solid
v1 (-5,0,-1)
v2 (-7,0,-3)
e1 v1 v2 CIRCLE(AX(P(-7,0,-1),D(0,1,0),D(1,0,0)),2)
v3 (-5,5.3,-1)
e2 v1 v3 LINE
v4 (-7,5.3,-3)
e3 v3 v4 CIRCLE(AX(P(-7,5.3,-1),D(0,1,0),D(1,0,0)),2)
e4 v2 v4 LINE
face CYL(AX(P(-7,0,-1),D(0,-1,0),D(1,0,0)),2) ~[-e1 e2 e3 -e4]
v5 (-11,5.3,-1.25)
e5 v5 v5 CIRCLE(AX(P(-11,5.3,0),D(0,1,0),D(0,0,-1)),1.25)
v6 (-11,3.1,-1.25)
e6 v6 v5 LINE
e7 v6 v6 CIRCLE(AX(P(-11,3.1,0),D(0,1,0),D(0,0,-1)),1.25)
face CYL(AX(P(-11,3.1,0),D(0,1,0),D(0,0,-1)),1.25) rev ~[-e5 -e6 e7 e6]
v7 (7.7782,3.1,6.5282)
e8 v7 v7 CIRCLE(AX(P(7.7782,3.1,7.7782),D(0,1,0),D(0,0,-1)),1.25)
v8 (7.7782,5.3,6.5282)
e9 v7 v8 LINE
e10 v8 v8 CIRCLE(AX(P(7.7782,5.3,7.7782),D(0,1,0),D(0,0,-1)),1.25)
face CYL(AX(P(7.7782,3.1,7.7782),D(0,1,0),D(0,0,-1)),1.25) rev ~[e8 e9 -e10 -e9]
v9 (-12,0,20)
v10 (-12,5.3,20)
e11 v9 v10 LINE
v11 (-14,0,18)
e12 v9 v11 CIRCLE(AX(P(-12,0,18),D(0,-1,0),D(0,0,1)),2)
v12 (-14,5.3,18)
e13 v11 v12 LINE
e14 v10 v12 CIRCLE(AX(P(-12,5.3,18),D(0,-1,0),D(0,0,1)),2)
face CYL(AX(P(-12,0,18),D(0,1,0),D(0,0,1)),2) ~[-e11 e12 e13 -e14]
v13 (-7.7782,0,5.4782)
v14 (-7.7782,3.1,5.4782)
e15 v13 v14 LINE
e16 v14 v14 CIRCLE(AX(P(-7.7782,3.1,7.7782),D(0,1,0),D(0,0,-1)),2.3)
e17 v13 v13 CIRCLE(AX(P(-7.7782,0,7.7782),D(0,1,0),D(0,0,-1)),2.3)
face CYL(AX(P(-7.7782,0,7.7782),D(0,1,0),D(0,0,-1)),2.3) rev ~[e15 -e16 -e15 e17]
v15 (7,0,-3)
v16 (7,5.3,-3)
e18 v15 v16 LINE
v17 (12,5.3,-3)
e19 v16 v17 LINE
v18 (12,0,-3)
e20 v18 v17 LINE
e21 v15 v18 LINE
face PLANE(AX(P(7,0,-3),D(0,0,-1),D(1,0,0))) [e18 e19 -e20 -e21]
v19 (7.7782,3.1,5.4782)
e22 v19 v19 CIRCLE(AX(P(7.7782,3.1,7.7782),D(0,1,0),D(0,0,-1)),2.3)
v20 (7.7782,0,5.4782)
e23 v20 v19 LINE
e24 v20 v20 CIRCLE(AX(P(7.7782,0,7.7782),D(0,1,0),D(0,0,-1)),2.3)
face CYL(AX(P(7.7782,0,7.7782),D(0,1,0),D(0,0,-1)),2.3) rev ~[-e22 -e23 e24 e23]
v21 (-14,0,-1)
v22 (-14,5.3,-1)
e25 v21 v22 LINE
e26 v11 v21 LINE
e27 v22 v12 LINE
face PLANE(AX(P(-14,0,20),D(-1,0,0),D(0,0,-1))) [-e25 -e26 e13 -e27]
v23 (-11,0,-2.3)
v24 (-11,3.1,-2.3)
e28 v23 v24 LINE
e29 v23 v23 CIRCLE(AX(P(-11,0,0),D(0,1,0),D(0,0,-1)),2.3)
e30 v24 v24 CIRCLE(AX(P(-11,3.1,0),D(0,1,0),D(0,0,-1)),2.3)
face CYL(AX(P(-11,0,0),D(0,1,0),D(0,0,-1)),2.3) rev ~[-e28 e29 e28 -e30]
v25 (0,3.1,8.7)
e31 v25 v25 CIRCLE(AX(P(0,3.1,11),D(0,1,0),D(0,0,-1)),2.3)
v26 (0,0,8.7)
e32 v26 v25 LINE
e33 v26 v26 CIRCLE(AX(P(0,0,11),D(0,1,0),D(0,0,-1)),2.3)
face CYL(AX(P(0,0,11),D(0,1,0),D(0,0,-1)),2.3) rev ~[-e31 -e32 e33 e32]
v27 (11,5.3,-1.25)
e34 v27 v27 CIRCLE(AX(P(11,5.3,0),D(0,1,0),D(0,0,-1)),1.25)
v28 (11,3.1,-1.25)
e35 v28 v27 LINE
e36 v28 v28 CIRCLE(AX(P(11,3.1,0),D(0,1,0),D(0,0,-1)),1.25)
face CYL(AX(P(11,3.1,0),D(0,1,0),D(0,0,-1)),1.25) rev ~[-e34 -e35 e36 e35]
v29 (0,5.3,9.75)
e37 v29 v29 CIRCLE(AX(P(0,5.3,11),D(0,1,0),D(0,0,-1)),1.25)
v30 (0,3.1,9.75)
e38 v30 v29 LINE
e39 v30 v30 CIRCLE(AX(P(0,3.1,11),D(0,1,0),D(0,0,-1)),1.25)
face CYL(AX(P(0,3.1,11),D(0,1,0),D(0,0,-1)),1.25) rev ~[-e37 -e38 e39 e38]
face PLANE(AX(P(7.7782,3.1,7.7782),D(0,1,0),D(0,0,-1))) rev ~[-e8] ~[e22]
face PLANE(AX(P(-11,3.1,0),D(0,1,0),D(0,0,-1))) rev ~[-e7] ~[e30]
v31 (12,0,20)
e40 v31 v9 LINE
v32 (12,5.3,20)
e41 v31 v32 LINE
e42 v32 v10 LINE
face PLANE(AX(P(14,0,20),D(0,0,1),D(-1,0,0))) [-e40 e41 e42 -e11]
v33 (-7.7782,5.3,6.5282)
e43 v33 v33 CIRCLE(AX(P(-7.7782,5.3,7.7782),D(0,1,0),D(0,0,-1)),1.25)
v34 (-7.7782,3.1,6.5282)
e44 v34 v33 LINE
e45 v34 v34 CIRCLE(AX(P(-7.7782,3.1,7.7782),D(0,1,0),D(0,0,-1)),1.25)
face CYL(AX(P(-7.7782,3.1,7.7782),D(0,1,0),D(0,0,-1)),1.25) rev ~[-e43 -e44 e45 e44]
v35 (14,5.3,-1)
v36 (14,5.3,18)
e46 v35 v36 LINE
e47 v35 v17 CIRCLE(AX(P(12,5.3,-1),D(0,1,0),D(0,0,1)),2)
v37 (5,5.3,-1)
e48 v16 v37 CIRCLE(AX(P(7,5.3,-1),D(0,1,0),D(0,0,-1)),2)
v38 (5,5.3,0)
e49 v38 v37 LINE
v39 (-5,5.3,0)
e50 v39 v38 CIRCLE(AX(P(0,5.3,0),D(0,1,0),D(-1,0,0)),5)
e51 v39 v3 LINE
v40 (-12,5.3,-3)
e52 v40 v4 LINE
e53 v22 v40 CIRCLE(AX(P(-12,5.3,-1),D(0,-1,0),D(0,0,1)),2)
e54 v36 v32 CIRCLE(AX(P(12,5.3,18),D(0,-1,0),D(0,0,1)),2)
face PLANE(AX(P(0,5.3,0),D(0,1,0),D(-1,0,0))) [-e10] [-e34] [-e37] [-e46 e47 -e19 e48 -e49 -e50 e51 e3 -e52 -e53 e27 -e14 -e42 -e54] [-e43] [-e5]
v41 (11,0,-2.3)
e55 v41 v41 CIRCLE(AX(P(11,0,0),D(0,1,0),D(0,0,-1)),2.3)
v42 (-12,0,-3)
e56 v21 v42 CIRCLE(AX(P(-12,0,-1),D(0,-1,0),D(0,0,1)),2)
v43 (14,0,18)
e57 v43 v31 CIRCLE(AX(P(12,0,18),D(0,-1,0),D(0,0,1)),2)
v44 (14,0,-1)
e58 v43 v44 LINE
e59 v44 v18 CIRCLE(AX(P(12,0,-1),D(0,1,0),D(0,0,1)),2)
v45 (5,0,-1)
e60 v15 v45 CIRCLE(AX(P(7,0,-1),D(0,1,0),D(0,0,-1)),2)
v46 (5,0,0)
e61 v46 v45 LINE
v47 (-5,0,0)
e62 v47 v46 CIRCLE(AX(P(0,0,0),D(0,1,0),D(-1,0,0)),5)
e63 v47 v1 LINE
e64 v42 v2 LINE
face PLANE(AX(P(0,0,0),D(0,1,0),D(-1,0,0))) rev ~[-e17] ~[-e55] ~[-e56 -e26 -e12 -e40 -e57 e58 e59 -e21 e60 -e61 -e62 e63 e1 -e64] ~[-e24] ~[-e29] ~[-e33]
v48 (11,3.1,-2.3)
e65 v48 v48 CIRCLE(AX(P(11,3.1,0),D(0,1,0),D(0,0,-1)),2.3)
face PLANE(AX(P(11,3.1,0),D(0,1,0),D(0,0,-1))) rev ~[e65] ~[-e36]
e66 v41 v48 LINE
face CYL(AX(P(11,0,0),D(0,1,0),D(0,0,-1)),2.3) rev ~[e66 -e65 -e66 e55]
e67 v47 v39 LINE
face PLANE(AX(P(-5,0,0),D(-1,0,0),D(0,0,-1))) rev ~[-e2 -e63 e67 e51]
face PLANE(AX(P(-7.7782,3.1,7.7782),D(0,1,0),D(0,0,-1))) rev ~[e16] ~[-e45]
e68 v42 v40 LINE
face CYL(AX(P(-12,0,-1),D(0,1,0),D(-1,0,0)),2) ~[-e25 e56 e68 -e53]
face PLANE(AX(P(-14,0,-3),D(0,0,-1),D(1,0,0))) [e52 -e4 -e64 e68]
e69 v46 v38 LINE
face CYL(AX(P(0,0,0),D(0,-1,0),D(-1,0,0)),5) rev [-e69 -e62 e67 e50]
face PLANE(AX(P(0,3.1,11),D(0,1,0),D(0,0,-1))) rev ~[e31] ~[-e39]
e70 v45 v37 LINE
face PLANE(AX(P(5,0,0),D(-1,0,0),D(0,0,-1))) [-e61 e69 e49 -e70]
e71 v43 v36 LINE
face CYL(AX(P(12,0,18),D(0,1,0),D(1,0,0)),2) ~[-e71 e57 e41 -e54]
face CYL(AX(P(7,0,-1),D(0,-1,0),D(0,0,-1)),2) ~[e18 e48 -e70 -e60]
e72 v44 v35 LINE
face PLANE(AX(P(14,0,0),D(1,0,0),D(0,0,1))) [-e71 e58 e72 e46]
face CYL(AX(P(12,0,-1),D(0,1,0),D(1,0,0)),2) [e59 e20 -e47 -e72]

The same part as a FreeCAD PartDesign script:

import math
import FreeCAD as App
import Part
import Sketcher

V = App.Vector
Q = App.Units.Quantity


def edges_at(feature, points):
    """Names of the edges that pass closest to the given points."""
    edges = feature.Shape.Edges
    near = lambda p: min(range(len(edges)), key=lambda i: edges[i].distToShape(Part.Vertex(*p))[0])
    return sorted({f"Edge{near(p) + 1}" for p in points})

doc = App.newDocument("Part")
body = doc.addObject("PartDesign::Body", "Body")

# Sketch on XZ plane
sketch1 = body.newObject("Sketcher::SketchObject", "Sketch")
sketch1.AttachmentSupport = (doc.getObject("XZ_Plane"), [""])
sketch1.MapMode = "FlatFace"
sketch1.addGeometry(Part.LineSegment(V(14, 20, 0), V(14, -3, 0)), False)
sketch1.addGeometry(Part.LineSegment(V(14, -3, 0), V(7, -3, 0)), False)
sketch1.addGeometry(Part.ArcOfCircle(Part.Circle(V(7, -1, 0), V(0, 0, 1), 2), math.radians(180), math.radians(270)), False)
sketch1.addGeometry(Part.LineSegment(V(5, -1, 0), V(5, 0, 0)), False)
sketch1.addGeometry(Part.ArcOfCircle(Part.Circle(V(0, 0, 0), V(0, 0, 1), 5), math.radians(0), math.radians(180)), False)
sketch1.addGeometry(Part.LineSegment(V(-5, 0, 0), V(-5, -1, 0)), False)
sketch1.addGeometry(Part.ArcOfCircle(Part.Circle(V(-7, -1, 0), V(0, 0, 1), 2), math.radians(-90), math.radians(0)), False)
sketch1.addGeometry(Part.LineSegment(V(-7, -3, 0), V(-14, -3, 0)), False)
sketch1.addGeometry(Part.LineSegment(V(-14, -3, 0), V(-14, 20, 0)), False)
sketch1.addGeometry(Part.LineSegment(V(-14, 20, 0), V(14, 20, 0)), False)
sketch1.addConstraint(Sketcher.Constraint("Coincident", 0, 2, 1, 1))
sketch1.addConstraint(Sketcher.Constraint("Tangent", 1, 2, 2, 2))
sketch1.addConstraint(Sketcher.Constraint("Tangent", 2, 1, 3, 1))
sketch1.addConstraint(Sketcher.Constraint("Tangent", 3, 2, 4, 1))
sketch1.addConstraint(Sketcher.Constraint("Tangent", 4, 2, 5, 1))
sketch1.addConstraint(Sketcher.Constraint("Tangent", 5, 2, 6, 2))
sketch1.addConstraint(Sketcher.Constraint("Tangent", 6, 1, 7, 1))
sketch1.addConstraint(Sketcher.Constraint("Coincident", 7, 2, 8, 1))
sketch1.addConstraint(Sketcher.Constraint("Coincident", 8, 2, 9, 1))
sketch1.addConstraint(Sketcher.Constraint("Coincident", 9, 2, 0, 1))
sketch1.addConstraint(Sketcher.Constraint("Vertical", 0))
sketch1.addConstraint(Sketcher.Constraint("Horizontal", 1))
sketch1.addConstraint(Sketcher.Constraint("Vertical", 3))
sketch1.addConstraint(Sketcher.Constraint("Vertical", 5))
sketch1.addConstraint(Sketcher.Constraint("Horizontal", 7))
sketch1.addConstraint(Sketcher.Constraint("Vertical", 8))
sketch1.addConstraint(Sketcher.Constraint("Horizontal", 9))
sketch1.addConstraint(Sketcher.Constraint("Coincident", 4, 3, -1, 1))
sketch1.addConstraint(Sketcher.Constraint("Equal", 2, 6))
sketch1.addConstraint(Sketcher.Constraint("Symmetric", 0, 2, 7, 2, -2))
sketch1.addConstraint(Sketcher.Constraint("Radius", 4, Q("5 mm")))
sketch1.addConstraint(Sketcher.Constraint("DistanceX", 9, 1, 9, 2, Q("28 mm")))
sketch1.addConstraint(Sketcher.Constraint("DistanceY", 3, 1, 3, 2, Q("1 mm")))
sketch1.addConstraint(Sketcher.Constraint("DistanceY", 0, 2, -1, 1, Q("3 mm")))
sketch1.addConstraint(Sketcher.Constraint("DistanceY", -1, 1, 8, 2, Q("20 mm")))
pad1 = body.newObject("PartDesign::Pad", "Pad")
pad1.Profile = sketch1
pad1.Length = 5.3
pad1.Reversed = True

# Sketch on XZ plane
sketch2 = body.newObject("Sketcher::SketchObject", "Sketch001")
sketch2.AttachmentSupport = (doc.getObject("XZ_Plane"), [""])
sketch2.MapMode = "FlatFace"
sketch2.addGeometry(Part.Circle(V(-11, 0, 0), V(0, 0, 1), 1.25), False)
sketch2.addGeometry(Part.Circle(V(-7.7782, 7.7782, 0), V(0, 0, 1), 1.25), False)
sketch2.addGeometry(Part.Circle(V(0, 11, 0), V(0, 0, 1), 1.25), False)
sketch2.addGeometry(Part.Circle(V(7.7782, 7.7782, 0), V(0, 0, 1), 1.25), False)
sketch2.addGeometry(Part.Circle(V(11, 0, 0), V(0, 0, 1), 1.25), False)
sketch2.addConstraint(Sketcher.Constraint("Equal", 0, 1))
sketch2.addConstraint(Sketcher.Constraint("Equal", 1, 2))
sketch2.addConstraint(Sketcher.Constraint("Equal", 2, 3))
sketch2.addConstraint(Sketcher.Constraint("Equal", 3, 4))
sketch2.addConstraint(Sketcher.Constraint("Symmetric", 0, 3, 4, 3, -1, 1))
sketch2.addConstraint(Sketcher.Constraint("Symmetric", 1, 3, 3, 3, -2))
sketch2.addConstraint(Sketcher.Constraint("PointOnObject", 0, 3, -1))
sketch2.addConstraint(Sketcher.Constraint("PointOnObject", 2, 3, -2))
sketch2.addConstraint(Sketcher.Constraint("Diameter", 0, Q("2.5 mm")))
sketch2.addConstraint(Sketcher.Constraint("DistanceX", 0, 3, -1, 1, Q("11 mm")))
sketch2.addConstraint(Sketcher.Constraint("DistanceY", -1, 1, 2, 3, Q("11 mm")))
sketch2.addConstraint(Sketcher.Constraint("DistanceX", 1, 3, -1, 1, Q("7.7782 mm")))
sketch2.addConstraint(Sketcher.Constraint("DistanceY", -1, 1, 1, 3, Q("7.7782 mm")))
doc.recompute()
hole = body.newObject("PartDesign::Hole", "Hole")
hole.Profile = sketch2
hole.ThreadType = "None"
hole.Diameter = 2.5
hole.DepthType = "ThroughAll"
hole.HoleCutType = "Counterbore"
hole.HoleCutDiameter = 4.6
hole.HoleCutDepth = 3.1
doc.recompute()

fillet = body.newObject("PartDesign::Fillet", "Fillet")
fillet.Base = (hole, edges_at(hole, [
    (-14, 2.65, -3),
    (-14, 2.65, 20),
    (14, 2.65, 20),
    (14, 2.65, -3),
]))
fillet.Radius = 2

doc.recompute()
